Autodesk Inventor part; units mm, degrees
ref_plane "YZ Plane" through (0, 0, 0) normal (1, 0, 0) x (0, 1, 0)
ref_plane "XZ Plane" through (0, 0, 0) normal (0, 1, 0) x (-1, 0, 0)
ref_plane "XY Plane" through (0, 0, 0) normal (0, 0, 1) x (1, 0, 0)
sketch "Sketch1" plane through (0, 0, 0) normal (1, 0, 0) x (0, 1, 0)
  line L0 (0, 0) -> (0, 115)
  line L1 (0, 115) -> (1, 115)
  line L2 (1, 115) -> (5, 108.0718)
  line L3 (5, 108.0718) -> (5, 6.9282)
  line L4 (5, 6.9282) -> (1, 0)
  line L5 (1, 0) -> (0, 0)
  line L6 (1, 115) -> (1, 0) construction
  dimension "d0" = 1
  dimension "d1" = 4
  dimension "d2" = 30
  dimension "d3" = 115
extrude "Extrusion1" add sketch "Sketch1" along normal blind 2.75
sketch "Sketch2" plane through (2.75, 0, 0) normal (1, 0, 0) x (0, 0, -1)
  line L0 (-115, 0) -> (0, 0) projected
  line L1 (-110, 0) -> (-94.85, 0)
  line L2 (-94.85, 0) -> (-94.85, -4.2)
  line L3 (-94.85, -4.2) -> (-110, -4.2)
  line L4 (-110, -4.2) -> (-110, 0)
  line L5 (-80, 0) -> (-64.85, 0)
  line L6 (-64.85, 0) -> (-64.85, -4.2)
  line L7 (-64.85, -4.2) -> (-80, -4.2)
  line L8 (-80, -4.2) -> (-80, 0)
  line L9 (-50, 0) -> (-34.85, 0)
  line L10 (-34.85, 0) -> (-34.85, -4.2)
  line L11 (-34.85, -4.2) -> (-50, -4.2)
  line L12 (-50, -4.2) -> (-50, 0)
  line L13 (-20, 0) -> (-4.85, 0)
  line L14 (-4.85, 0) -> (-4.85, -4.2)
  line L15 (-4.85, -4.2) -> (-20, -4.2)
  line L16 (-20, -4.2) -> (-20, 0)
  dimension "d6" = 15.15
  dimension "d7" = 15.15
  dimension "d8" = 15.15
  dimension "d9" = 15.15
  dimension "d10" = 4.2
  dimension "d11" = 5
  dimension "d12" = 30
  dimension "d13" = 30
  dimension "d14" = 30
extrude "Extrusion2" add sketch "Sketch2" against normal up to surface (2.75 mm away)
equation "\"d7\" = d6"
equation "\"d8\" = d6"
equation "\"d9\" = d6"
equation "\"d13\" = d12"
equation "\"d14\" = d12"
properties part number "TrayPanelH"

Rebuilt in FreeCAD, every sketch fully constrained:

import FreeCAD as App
import Part
import Sketcher
from FreeCAD import Vector
Q = App.Units.Quantity

doc = App.newDocument("Part")
body = doc.addObject("PartDesign::Body", "Body")

sketch1 = body.newObject("Sketcher::SketchObject", "Sketch")
sketch1.AttachmentSupport = (doc.getObject("YZ_Plane"), [""])
sketch1.MapMode = "FlatFace"
sketch1.addGeometry([
    Part.LineSegment(Vector(0, 115, 0), Vector(0, 0, 0)),
    Part.LineSegment(Vector(0, 0, 0), Vector(1, 0, 0)),
    Part.LineSegment(Vector(1, 0, 0), Vector(5, 6.9, 0)),
    Part.LineSegment(Vector(5, 6.9, 0), Vector(5, 108.1, 0)),
    Part.LineSegment(Vector(5, 108.1, 0), Vector(1, 115, 0)),
    Part.LineSegment(Vector(1, 115, 0), Vector(0, 115, 0)),
], False)
sketch1.addConstraint([
    Sketcher.Constraint("Coincident", 0, 2, 1, 1),
    Sketcher.Constraint("Coincident", 1, 2, 2, 1),
    Sketcher.Constraint("Coincident", 2, 2, 3, 1),
    Sketcher.Constraint("Coincident", 3, 2, 4, 1),
    Sketcher.Constraint("Coincident", 4, 2, 5, 1),
    Sketcher.Constraint("Coincident", 5, 2, 0, 1),
    Sketcher.Constraint("Vertical", 0),
    Sketcher.Constraint("Horizontal", 1),
    Sketcher.Constraint("Vertical", 3),
    Sketcher.Constraint("Horizontal", 5),
    Sketcher.Constraint("Coincident", 0, 2, -1, 1),
    Sketcher.Constraint("Vertical", 1, 2, 4, 2),
    Sketcher.Constraint("Equal", 2, 4),
    Sketcher.Constraint("DistanceX", 1, 1, 1, 2, 1.0),
    Sketcher.Constraint("DistanceY", 0, 2, 0, 1, 115.0),
    Sketcher.Constraint("DistanceX", 1, 2, 2, 2, 4.0),
    Sketcher.Constraint("Angle", 2, Q("60 deg")),
])
pad1 = body.newObject("PartDesign::Pad", "Pad")
pad1.Profile = sketch1
pad1.Length = 2.75

sketch2 = body.newObject("Sketcher::SketchObject", "Sketch001")
sketch2.AttachmentSupport = (doc.getObject("YZ_Plane"), [""])
sketch2.MapMode = "FlatFace"
sketch2.AttachmentOffset = App.Placement(Vector(0, 0, 2.75), App.Rotation())
sketch2.addGeometry([
    Part.LineSegment(Vector(0, 4.8, 0), Vector(0, 20, 0)),
    Part.LineSegment(Vector(0, 20, 0), Vector(-4.2, 20, 0)),
    Part.LineSegment(Vector(-4.2, 20, 0), Vector(-4.2, 4.8, 0)),
    Part.LineSegment(Vector(-4.2, 4.8, 0), Vector(0, 4.8, 0)),
    Part.LineSegment(Vector(0, 34.9, 0), Vector(0, 50, 0)),
    Part.LineSegment(Vector(0, 50, 0), Vector(-4.2, 50, 0)),
    Part.LineSegment(Vector(-4.2, 50, 0), Vector(-4.2, 34.9, 0)),
    Part.LineSegment(Vector(-4.2, 34.9, 0), Vector(0, 34.9, 0)),
    Part.LineSegment(Vector(0, 64.8, 0), Vector(0, 80, 0)),
    Part.LineSegment(Vector(0, 80, 0), Vector(-4.2, 80, 0)),
    Part.LineSegment(Vector(-4.2, 80, 0), Vector(-4.2, 64.8, 0)),
    Part.LineSegment(Vector(-4.2, 64.8, 0), Vector(0, 64.8, 0)),
    Part.LineSegment(Vector(0, 94.8, 0), Vector(0, 110, 0)),
    Part.LineSegment(Vector(0, 110, 0), Vector(-4.2, 110, 0)),
    Part.LineSegment(Vector(-4.2, 110, 0), Vector(-4.2, 94.8, 0)),
    Part.LineSegment(Vector(-4.2, 94.8, 0), Vector(0, 94.8, 0)),
], False)
sketch2.addConstraint([
    Sketcher.Constraint("Coincident", 0, 2, 1, 1),
    Sketcher.Constraint("Coincident", 1, 2, 2, 1),
    Sketcher.Constraint("Coincident", 2, 2, 3, 1),
    Sketcher.Constraint("Coincident", 3, 2, 0, 1),
    Sketcher.Constraint("Coincident", 4, 2, 5, 1),
    Sketcher.Constraint("Coincident", 5, 2, 6, 1),
    Sketcher.Constraint("Coincident", 6, 2, 7, 1),
    Sketcher.Constraint("Coincident", 7, 2, 4, 1),
    Sketcher.Constraint("Coincident", 8, 2, 9, 1),
    Sketcher.Constraint("Coincident", 9, 2, 10, 1),
    Sketcher.Constraint("Coincident", 10, 2, 11, 1),
    Sketcher.Constraint("Coincident", 11, 2, 8, 1),
    Sketcher.Constraint("Coincident", 12, 2, 13, 1),
    Sketcher.Constraint("Coincident", 13, 2, 14, 1),
    Sketcher.Constraint("Coincident", 14, 2, 15, 1),
    Sketcher.Constraint("Coincident", 15, 2, 12, 1),
    Sketcher.Constraint("Vertical", 0),
    Sketcher.Constraint("Horizontal", 1),
    Sketcher.Constraint("Vertical", 2),
    Sketcher.Constraint("Horizontal", 3),
    Sketcher.Constraint("Vertical", 4),
    Sketcher.Constraint("Horizontal", 5),
    Sketcher.Constraint("Vertical", 6),
    Sketcher.Constraint("Horizontal", 7),
    Sketcher.Constraint("Vertical", 8),
    Sketcher.Constraint("Horizontal", 9),
    Sketcher.Constraint("Vertical", 10),
    Sketcher.Constraint("Horizontal", 11),
    Sketcher.Constraint("Vertical", 12),
    Sketcher.Constraint("Horizontal", 13),
    Sketcher.Constraint("Vertical", 14),
    Sketcher.Constraint("Horizontal", 15),
    Sketcher.Constraint("PointOnObject", 0, 2, -2),
    Sketcher.Constraint("PointOnObject", 4, 2, -2),
    Sketcher.Constraint("PointOnObject", 8, 2, -2),
    Sketcher.Constraint("PointOnObject", 12, 2, -2),
    Sketcher.Constraint("Vertical", 2, 2, 5, 2),
    Sketcher.Constraint("Vertical", 6, 2, 9, 2),
    Sketcher.Constraint("Vertical", 10, 2, 13, 2),
    Sketcher.Constraint("Equal", 2, 4),
    Sketcher.Constraint("Equal", 6, 8),
    Sketcher.Constraint("Equal", 10, 12),
    Sketcher.Constraint("DistanceX", 1, 2, 1, 1, 4.2),
    Sketcher.Constraint("DistanceY", 0, 2, 4, 2, 30.0),
    Sketcher.Constraint("DistanceY", 4, 2, 8, 2, 30.0),
    Sketcher.Constraint("DistanceY", 8, 2, 12, 2, 30.0),
    Sketcher.Constraint("DistanceY", 0, 1, 0, 2, 15.15),
    Sketcher.Constraint("DistanceY", -1, 1, 0, 2, 20.0),
])
pad2 = body.newObject("PartDesign::Pad", "Pad001")
pad2.Profile = sketch2
pad2.Length = 2.75
pad2.Reversed = True

doc.recompute()
